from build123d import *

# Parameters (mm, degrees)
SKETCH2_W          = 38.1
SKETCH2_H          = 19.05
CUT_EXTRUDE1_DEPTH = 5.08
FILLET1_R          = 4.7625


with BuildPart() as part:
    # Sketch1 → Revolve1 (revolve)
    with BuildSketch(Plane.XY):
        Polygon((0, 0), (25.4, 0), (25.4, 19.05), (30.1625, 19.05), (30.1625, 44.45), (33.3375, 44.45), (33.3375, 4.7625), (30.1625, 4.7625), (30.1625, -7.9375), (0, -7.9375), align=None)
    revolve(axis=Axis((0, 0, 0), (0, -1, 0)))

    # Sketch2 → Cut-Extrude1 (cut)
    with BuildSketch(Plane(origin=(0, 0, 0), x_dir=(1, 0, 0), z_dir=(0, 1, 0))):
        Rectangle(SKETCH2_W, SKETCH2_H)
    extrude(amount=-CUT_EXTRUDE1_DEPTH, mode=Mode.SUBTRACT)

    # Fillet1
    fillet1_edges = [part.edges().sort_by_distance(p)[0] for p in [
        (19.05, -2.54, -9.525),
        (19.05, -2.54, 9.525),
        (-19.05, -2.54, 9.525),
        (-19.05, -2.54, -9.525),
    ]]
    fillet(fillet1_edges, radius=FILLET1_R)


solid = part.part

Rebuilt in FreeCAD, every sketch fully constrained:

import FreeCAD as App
import Part
import Sketcher

V = App.Vector
Q = App.Units.Quantity


def edges_at(feature, points):
    """Names of the edges that pass closest to the given points."""
    edges = feature.Shape.Edges
    near = lambda p: min(range(len(edges)), key=lambda i: edges[i].distToShape(Part.Vertex(*p))[0])
    return sorted({f"Edge{near(p) + 1}" for p in points})


def add_polygon(sketch, points):
    """Adds a closed chain of lines whose ends are joined by coincident constraints."""
    first, n = sketch.GeometryCount, len(points)
    for a, b in zip(points, points[1:] + points[:1]):
        sketch.addGeometry(Part.LineSegment(App.Vector(*a, 0), App.Vector(*b, 0)), False)
    for i in range(n):
        sketch.addConstraint(Sketcher.Constraint("Coincident", first + i, 2, first + (i + 1) % n, 1))

doc = App.newDocument("Part")
params = doc.addObject("Spreadsheet::Sheet", "Params")
for row, (alias, value) in enumerate([
    ("sketch1_width", "1 in"),
    ("sketch1_height", "0.5 in"),
    ("sketch1_height2", "0.75 in"),
    ("sketch1_width2", "1.1875 in"),
    ("sketch1_width3", "0.125 in"),
    ("revolution_angle", "360 deg"),
    ("sketch2_width", "1.5 in"),
    ("sketch2_height", "0.75 in"),
    ("pocket1_length", "0.2 in"),
    ("fillet_radius", "0.1875 in"),
], start=1):
    params.set(f"A{row}", alias)
    params.set(f"B{row}", "=" + value)
    params.setAlias(f"B{row}", alias)

body = doc.addObject("PartDesign::Body", "Body")

sketch1 = body.newObject("Sketcher::SketchObject", "Sketch")
sketch1.AttachmentSupport = (doc.getObject("XY_Plane"), [""])
sketch1.MapMode = "FlatFace"
add_polygon(sketch1, [(25.4, 0), (0, 0), (0, -7.9375), (30.1625, -7.9375), (30.1625, 4.7625), (33.3375, 4.7625), (33.3375, 44.45), (30.1625, 44.45), (30.1625, 19.05), (25.4, 19.05)])
sketch1.addConstraint([
    Sketcher.Constraint("Horizontal", 0),
    Sketcher.Constraint("Vertical", 1),
    Sketcher.Constraint("Horizontal", 2),
    Sketcher.Constraint("Vertical", 3),
    Sketcher.Constraint("Horizontal", 4),
    Sketcher.Constraint("Vertical", 5),
    Sketcher.Constraint("Horizontal", 6),
    Sketcher.Constraint("Vertical", 7),
    Sketcher.Constraint("Horizontal", 8),
    Sketcher.Constraint("Vertical", 9),
    Sketcher.Constraint("Coincident", 0, 2, -1, 1),
    Sketcher.Constraint("Vertical", 3, 2, 6, 2),
    Sketcher.Constraint("Equal", 0, 7),
    Sketcher.Constraint("DistanceX", 0, 2, 0, 1, Q("1 in")),
    Sketcher.Constraint("DistanceY", 3, 1, 3, 2, Q("0.5 in")),
    Sketcher.Constraint("DistanceY", 9, 2, 9, 1, Q("0.75 in")),
    Sketcher.Constraint("DistanceX", 2, 1, 2, 2, Q("1.1875 in")),
    Sketcher.Constraint("DistanceX", 4, 1, 4, 2, Q("0.125 in")),
    Sketcher.Constraint("DistanceY", 1, 2, 1, 1, Q("0.3125 in")),
])
sketch1.setExpression("Constraints[23]", "Params.sketch1_width")
sketch1.setExpression("Constraints[24]", "Params.sketch1_height")
sketch1.setExpression("Constraints[25]", "Params.sketch1_height2")
sketch1.setExpression("Constraints[26]", "Params.sketch1_width2")
sketch1.setExpression("Constraints[27]", "Params.sketch1_width3")
revolution = body.newObject("PartDesign::Revolution", "Revolution")
revolution.Profile = sketch1
revolution.ReferenceAxis = (sketch1, ["V_Axis"])
revolution.setExpression("Angle", "Params.revolution_angle")

sketch2 = body.newObject("Sketcher::SketchObject", "Sketch001")
sketch2.AttachmentSupport = (doc.getObject("XZ_Plane"), [""])
sketch2.MapMode = "FlatFace"
add_polygon(sketch2, [(-19.05, -9.525), (-19.05, 9.525), (19.05, 9.525), (19.05, -9.525)])
sketch2.addConstraint([
    Sketcher.Constraint("Vertical", 0),
    Sketcher.Constraint("Horizontal", 1),
    Sketcher.Constraint("Vertical", 2),
    Sketcher.Constraint("Horizontal", 3),
    Sketcher.Constraint("Symmetric", 0, 2, 2, 2, -1, 1),
    Sketcher.Constraint("DistanceX", 1, 1, 1, 2, Q("1.5 in")),
    Sketcher.Constraint("DistanceY", 0, 1, 0, 2, Q("0.75 in")),
])
sketch2.setExpression("Constraints[9]", "Params.sketch2_width")
sketch2.setExpression("Constraints[10]", "Params.sketch2_height")
pocket1 = body.newObject("PartDesign::Pocket", "Pocket")
pocket1.Profile = sketch2
pocket1.setExpression("Length", "Params.pocket1_length")
pocket1.Reversed = True
doc.recompute()

fillet = body.newObject("PartDesign::Fillet", "Fillet")
fillet.Base = (pocket1, edges_at(pocket1, [
    (19.05, -2.54, -9.525),
    (19.05, -2.54, 9.525),
    (-19.05, -2.54, 9.525),
    (-19.05, -2.54, -9.525),
]))
fillet.setExpression("Radius", "Params.fillet_radius")

doc.recompute()
